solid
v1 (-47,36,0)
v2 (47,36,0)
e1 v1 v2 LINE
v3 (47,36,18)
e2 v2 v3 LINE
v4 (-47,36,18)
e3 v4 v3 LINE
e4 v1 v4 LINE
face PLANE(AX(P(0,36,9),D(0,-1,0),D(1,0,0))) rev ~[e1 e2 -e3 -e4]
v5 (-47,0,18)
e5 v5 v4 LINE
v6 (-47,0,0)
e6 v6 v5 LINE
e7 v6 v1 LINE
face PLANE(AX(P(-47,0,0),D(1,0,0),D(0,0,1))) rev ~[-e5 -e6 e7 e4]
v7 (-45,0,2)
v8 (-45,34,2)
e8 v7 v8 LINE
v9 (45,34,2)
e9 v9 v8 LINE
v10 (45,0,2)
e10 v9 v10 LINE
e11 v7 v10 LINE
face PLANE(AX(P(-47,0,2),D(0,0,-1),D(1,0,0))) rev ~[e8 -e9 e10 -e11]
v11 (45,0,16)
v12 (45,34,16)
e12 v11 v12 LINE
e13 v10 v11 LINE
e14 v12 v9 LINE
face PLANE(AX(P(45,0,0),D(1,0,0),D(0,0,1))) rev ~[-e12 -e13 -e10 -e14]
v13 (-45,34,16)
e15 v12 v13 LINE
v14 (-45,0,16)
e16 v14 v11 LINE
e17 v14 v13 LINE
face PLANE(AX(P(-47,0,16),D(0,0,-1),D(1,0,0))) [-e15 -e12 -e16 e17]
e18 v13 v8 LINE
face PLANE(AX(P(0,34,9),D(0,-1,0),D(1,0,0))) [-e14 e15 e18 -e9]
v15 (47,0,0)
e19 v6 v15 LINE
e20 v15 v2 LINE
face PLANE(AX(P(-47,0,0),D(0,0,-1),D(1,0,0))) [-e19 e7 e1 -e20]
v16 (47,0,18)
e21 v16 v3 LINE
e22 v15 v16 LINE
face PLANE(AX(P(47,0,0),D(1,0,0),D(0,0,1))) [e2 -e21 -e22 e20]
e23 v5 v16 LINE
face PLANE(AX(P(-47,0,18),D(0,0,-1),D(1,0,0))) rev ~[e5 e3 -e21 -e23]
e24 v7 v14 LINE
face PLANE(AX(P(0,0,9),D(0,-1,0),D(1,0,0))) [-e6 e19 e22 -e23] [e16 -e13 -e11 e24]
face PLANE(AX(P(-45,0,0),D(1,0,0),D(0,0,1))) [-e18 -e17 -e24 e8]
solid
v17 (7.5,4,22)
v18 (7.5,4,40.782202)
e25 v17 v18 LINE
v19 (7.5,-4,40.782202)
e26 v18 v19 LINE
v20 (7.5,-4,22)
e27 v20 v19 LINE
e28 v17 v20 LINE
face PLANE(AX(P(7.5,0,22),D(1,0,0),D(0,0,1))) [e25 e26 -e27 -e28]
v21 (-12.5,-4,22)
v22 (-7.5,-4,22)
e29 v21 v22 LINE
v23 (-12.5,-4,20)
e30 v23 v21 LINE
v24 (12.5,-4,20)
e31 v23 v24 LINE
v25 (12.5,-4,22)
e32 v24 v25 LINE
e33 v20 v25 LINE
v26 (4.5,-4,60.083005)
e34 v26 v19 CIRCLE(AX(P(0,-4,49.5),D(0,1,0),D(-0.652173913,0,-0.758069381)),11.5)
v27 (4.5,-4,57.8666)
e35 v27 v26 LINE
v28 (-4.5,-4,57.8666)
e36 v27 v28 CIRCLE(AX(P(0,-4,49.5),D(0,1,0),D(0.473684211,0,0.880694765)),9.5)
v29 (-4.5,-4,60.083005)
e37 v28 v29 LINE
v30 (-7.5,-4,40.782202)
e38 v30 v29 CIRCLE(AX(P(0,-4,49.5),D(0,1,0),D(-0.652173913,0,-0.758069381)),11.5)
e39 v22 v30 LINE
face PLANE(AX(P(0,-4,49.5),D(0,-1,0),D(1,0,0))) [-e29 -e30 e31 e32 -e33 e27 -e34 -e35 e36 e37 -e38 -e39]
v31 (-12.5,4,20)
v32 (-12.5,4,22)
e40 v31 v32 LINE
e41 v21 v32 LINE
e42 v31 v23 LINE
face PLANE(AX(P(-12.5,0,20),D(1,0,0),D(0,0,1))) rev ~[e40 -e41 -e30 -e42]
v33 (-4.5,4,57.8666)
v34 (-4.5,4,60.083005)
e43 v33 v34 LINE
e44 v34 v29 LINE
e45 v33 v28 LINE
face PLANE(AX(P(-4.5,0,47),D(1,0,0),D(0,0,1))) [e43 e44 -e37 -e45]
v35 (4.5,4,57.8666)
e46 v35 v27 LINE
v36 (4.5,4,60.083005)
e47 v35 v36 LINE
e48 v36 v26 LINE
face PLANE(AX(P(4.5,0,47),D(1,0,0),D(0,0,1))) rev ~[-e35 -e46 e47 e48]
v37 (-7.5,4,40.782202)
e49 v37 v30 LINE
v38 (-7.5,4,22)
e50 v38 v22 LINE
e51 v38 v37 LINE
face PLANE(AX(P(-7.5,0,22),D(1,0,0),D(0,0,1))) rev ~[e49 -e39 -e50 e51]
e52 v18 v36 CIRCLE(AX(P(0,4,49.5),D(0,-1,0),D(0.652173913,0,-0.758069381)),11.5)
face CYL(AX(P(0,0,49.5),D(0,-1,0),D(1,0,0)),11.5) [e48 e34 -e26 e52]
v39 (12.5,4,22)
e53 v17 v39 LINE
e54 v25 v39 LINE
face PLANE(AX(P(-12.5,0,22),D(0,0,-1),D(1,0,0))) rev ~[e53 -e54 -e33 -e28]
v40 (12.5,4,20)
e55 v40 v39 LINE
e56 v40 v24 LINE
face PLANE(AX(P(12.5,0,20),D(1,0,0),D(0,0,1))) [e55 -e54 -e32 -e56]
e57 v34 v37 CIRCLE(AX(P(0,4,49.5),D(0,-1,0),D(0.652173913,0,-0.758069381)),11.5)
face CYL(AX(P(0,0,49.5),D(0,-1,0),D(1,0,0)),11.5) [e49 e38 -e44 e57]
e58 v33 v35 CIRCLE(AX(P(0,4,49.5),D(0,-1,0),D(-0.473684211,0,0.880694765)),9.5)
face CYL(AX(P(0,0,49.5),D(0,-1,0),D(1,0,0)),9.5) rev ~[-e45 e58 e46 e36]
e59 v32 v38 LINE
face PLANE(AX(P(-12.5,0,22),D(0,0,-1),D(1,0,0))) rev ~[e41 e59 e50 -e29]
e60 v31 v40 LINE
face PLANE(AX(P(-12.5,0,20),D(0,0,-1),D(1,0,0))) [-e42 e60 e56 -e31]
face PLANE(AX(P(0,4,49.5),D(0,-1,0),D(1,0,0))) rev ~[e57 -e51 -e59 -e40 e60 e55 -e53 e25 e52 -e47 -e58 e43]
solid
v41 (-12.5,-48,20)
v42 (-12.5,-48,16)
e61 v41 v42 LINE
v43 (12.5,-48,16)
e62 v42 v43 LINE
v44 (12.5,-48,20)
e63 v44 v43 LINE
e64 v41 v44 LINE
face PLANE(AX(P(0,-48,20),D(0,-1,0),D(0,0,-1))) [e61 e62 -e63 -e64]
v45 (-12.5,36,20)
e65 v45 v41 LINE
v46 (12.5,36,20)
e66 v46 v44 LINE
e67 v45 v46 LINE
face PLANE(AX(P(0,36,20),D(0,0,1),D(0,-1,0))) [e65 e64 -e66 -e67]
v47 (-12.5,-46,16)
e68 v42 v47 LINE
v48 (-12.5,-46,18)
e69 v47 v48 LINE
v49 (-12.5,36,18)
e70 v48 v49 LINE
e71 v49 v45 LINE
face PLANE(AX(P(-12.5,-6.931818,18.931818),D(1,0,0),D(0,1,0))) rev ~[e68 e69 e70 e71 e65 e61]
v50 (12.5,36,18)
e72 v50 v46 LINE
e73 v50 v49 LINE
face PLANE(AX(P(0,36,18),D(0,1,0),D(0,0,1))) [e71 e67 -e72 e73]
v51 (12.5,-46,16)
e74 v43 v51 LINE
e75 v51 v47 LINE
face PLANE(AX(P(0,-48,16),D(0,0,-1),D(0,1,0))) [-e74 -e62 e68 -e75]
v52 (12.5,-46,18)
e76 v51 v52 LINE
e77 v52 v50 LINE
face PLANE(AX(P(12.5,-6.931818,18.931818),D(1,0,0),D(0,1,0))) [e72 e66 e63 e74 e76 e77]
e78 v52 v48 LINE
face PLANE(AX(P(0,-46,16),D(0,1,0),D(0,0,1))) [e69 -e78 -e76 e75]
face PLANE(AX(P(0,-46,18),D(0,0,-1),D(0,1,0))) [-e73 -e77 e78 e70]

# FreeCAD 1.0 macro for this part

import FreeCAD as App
import Part
import Sketcher

V = App.Vector


def faces_at(feature, points):
    """Names of the faces that lie closest to the given points."""
    faces = feature.Shape.Faces
    near = lambda p: min(range(len(faces)), key=lambda i: faces[i].distToShape(Part.Vertex(*p))[0])
    return sorted({f"Face{near(p) + 1}" for p in points})

doc = App.newDocument("Part")
body = doc.addObject("PartDesign::Body", "Body")

# Sketch on XZ plane
sketch1 = doc.addObject("Sketcher::SketchObject", "Sketch")
body.addObject(sketch1)
sketch1.AttachmentSupport = (doc.XZ_Plane, [""])
sketch1.MapMode = "FlatFace"
sketch1.addGeometry(Part.LineSegment(V(-47, 18, 0), V(-47, 0, 0)), False)
sketch1.addGeometry(Part.LineSegment(V(-47, 0, 0), V(47, 0, 0)), False)
sketch1.addGeometry(Part.LineSegment(V(47, 0, 0), V(47, 18, 0)), False)
sketch1.addGeometry(Part.LineSegment(V(47, 18, 0), V(-47, 18, 0)), False)
sketch1.addConstraint(Sketcher.Constraint("Coincident", 0, 2, 1, 1))
sketch1.addConstraint(Sketcher.Constraint("Coincident", 1, 2, 2, 1))
sketch1.addConstraint(Sketcher.Constraint("Coincident", 2, 2, 3, 1))
sketch1.addConstraint(Sketcher.Constraint("Coincident", 3, 2, 0, 1))
sketch1.addConstraint(Sketcher.Constraint("Vertical", 0))
sketch1.addConstraint(Sketcher.Constraint("Horizontal", 1))
sketch1.addConstraint(Sketcher.Constraint("Vertical", 2))
sketch1.addConstraint(Sketcher.Constraint("Horizontal", 3))
sketch1.addConstraint(Sketcher.Constraint("Symmetric", 0, 2, 1, 2, -1, 1))
sketch1.addConstraint(Sketcher.Constraint("DistanceX", 1, 1, 1, 2, 94.0))
sketch1.addConstraint(Sketcher.Constraint("DistanceY", 0, 2, 0, 1, 18.0))
pad1 = doc.addObject("PartDesign::Pad", "Pad")
body.addObject(pad1)
pad1.Profile = sketch1
pad1.Length = 36
pad1.Reversed = True
doc.recompute()

thickness = doc.addObject("PartDesign::Thickness", "Thickness")
body.addObject(thickness)
thickness.Base = (pad1, faces_at(pad1, [(0, 0, 9)]))
thickness.Value = 2
thickness.Reversed = True
thickness.Join = "Arc"
body2 = doc.addObject("PartDesign::Body", "Body001")

# Sketch on YZ plane
sketch2 = doc.addObject("Sketcher::SketchObject", "Sketch001")
body2.addObject(sketch2)
sketch2.AttachmentSupport = (doc.getObject("YZ_Plane001"), [""])
sketch2.MapMode = "FlatFace"
sketch2.addGeometry(Part.LineSegment(V(36, 18, 0), V(36, 20, 0)), False)
sketch2.addGeometry(Part.LineSegment(V(36, 20, 0), V(-48, 20, 0)), False)
sketch2.addGeometry(Part.LineSegment(V(-48, 20, 0), V(-48, 16, 0)), False)
sketch2.addGeometry(Part.LineSegment(V(-48, 16, 0), V(-46, 16, 0)), False)
sketch2.addGeometry(Part.LineSegment(V(-46, 16, 0), V(-46, 18, 0)), False)
sketch2.addGeometry(Part.LineSegment(V(-46, 18, 0), V(36, 18, 0)), False)
sketch2.addConstraint(Sketcher.Constraint("Coincident", 0, 2, 1, 1))
sketch2.addConstraint(Sketcher.Constraint("Coincident", 1, 2, 2, 1))
sketch2.addConstraint(Sketcher.Constraint("Coincident", 2, 2, 3, 1))
sketch2.addConstraint(Sketcher.Constraint("Coincident", 3, 2, 4, 1))
sketch2.addConstraint(Sketcher.Constraint("Coincident", 4, 2, 5, 1))
sketch2.addConstraint(Sketcher.Constraint("Coincident", 5, 2, 0, 1))
sketch2.addConstraint(Sketcher.Constraint("Vertical", 0))
sketch2.addConstraint(Sketcher.Constraint("Horizontal", 1))
sketch2.addConstraint(Sketcher.Constraint("Vertical", 2))
sketch2.addConstraint(Sketcher.Constraint("Horizontal", 3))
sketch2.addConstraint(Sketcher.Constraint("Vertical", 4))
sketch2.addConstraint(Sketcher.Constraint("Horizontal", 5))
sketch2.addConstraint(Sketcher.Constraint("Equal", 3, 0))
sketch2.addConstraint(Sketcher.Constraint("Equal", 0, 4))
sketch2.addConstraint(Sketcher.Constraint("DistanceX", 1, 2, 1, 1, 84.0))
sketch2.addConstraint(Sketcher.Constraint("DistanceX", 3, 1, 3, 2, 2.0))
sketch2.addConstraint(Sketcher.Constraint("DistanceX", -1, 1, 0, 2, 36.0))
sketch2.addConstraint(Sketcher.Constraint("DistanceY", -1, 1, 0, 2, 20.0))
pad2 = doc.addObject("PartDesign::Pad", "Pad001")
body2.addObject(pad2)
pad2.Profile = sketch2
pad2.Length = 25
pad2.Midplane = True
body3 = doc.addObject("PartDesign::Body", "Body002")

# Sketch on XZ plane
sketch3 = doc.addObject("Sketcher::SketchObject", "Sketch002")
body3.addObject(sketch3)
sketch3.AttachmentSupport = (doc.getObject("XZ_Plane002"), [""])
sketch3.MapMode = "FlatFace"
sketch3.addGeometry(Part.LineSegment(V(-12.5, 22, 0), V(-12.5, 20, 0)), False)
sketch3.addGeometry(Part.LineSegment(V(-12.5, 20, 0), V(12.5, 20, 0)), False)
sketch3.addGeometry(Part.LineSegment(V(12.5, 20, 0), V(12.5, 22, 0)), False)
sketch3.addGeometry(Part.LineSegment(V(12.5, 22, 0), V(-12.5, 22, 0)), False)
sketch3.addConstraint(Sketcher.Constraint("Coincident", 0, 2, 1, 1))
sketch3.addConstraint(Sketcher.Constraint("Coincident", 1, 2, 2, 1))
sketch3.addConstraint(Sketcher.Constraint("Coincident", 2, 2, 3, 1))
sketch3.addConstraint(Sketcher.Constraint("Coincident", 3, 2, 0, 1))
sketch3.addConstraint(Sketcher.Constraint("Vertical", 0))
sketch3.addConstraint(Sketcher.Constraint("Horizontal", 1))
sketch3.addConstraint(Sketcher.Constraint("Vertical", 2))
sketch3.addConstraint(Sketcher.Constraint("Horizontal", 3))
sketch3.addConstraint(Sketcher.Constraint("DistanceX", 1, 1, 1, 2, 25.0))
sketch3.addConstraint(Sketcher.Constraint("DistanceY", 0, 2, 0, 1, 2.0))
sketch3.addConstraint(Sketcher.Constraint("DistanceY", -1, 1, 0, 2, 20.0))
sketch3.addConstraint(Sketcher.Constraint("DistanceX", 0, 2, -1, 1, 12.5))
pad3 = doc.addObject("PartDesign::Pad", "Pad002")
body3.addObject(pad3)
pad3.Profile = sketch3
pad3.Length = 8
pad3.Midplane = True

# Sketch on XZ plane
sketch4 = doc.addObject("Sketcher::SketchObject", "Sketch003")
body3.addObject(sketch4)
sketch4.AttachmentSupport = (doc.getObject("XZ_Plane002"), [""])
sketch4.MapMode = "FlatFace"
sketch4.addGeometry(Part.LineSegment(V(-7.5, 47, 0), V(-7.5, 22, 0)), False)
sketch4.addGeometry(Part.LineSegment(V(-7.5, 22, 0), V(7.5, 22, 0)), False)
sketch4.addGeometry(Part.LineSegment(V(7.5, 22, 0), V(7.5, 47, 0)), False)
sketch4.addGeometry(Part.LineSegment(V(7.5, 47, 0), V(-7.5, 47, 0)), False)
sketch4.addConstraint(Sketcher.Constraint("Coincident", 0, 2, 1, 1))
sketch4.addConstraint(Sketcher.Constraint("Coincident", 1, 2, 2, 1))
sketch4.addConstraint(Sketcher.Constraint("Coincident", 2, 2, 3, 1))
sketch4.addConstraint(Sketcher.Constraint("Coincident", 3, 2, 0, 1))
sketch4.addConstraint(Sketcher.Constraint("Vertical", 0))
sketch4.addConstraint(Sketcher.Constraint("Horizontal", 1))
sketch4.addConstraint(Sketcher.Constraint("Vertical", 2))
sketch4.addConstraint(Sketcher.Constraint("Horizontal", 3))
sketch4.addConstraint(Sketcher.Constraint("DistanceX", 1, 1, 1, 2, 15.0))
sketch4.addConstraint(Sketcher.Constraint("DistanceY", 0, 2, 0, 1, 25.0))
sketch4.addConstraint(Sketcher.Constraint("DistanceY", -1, 1, 0, 2, 22.0))
sketch4.addConstraint(Sketcher.Constraint("DistanceX", 0, 2, -1, 1, 7.5))
pad4 = doc.addObject("PartDesign::Pad", "Pad003")
body3.addObject(pad4)
pad4.Profile = sketch4
pad4.Length = 8
pad4.Midplane = True

# Sketch on XZ plane
sketch5 = doc.addObject("Sketcher::SketchObject", "Sketch004")
body3.addObject(sketch5)
sketch5.AttachmentSupport = (doc.getObject("XZ_Plane002"), [""])
sketch5.MapMode = "FlatFace"
sketch5.addGeometry(Part.Circle(V(0, 49.5, 0), V(0, 0, 1), 11.5), False)
sketch5.addConstraint(Sketcher.Constraint("PointOnObject", 0, 3, -2))
sketch5.addConstraint(Sketcher.Constraint("Diameter", 0, 23.0))
sketch5.addConstraint(Sketcher.Constraint("DistanceY", -1, 1, 0, 3, 49.5))
pad5 = doc.addObject("PartDesign::Pad", "Pad004")
body3.addObject(pad5)
pad5.Profile = sketch5
pad5.Length = 8
pad5.Midplane = True

# Sketch on XZ plane
sketch6 = doc.addObject("Sketcher::SketchObject", "Sketch005")
body3.addObject(sketch6)
sketch6.AttachmentSupport = (doc.getObject("XZ_Plane002"), [""])
sketch6.MapMode = "FlatFace"
sketch6.addGeometry(Part.Circle(V(0, 49.5, 0), V(0, 0, 1), 9.5), False)
sketch6.addConstraint(Sketcher.Constraint("PointOnObject", 0, 3, -2))
sketch6.addConstraint(Sketcher.Constraint("Diameter", 0, 19.0))
sketch6.addConstraint(Sketcher.Constraint("DistanceY", -1, 1, 0, 3, 49.5))
pocket1 = doc.addObject("PartDesign::Pocket", "Pocket")
body3.addObject(pocket1)
pocket1.Profile = sketch6
pocket1.Length = 35.4
pocket1.Midplane = True

# Sketch on XZ plane
sketch7 = doc.addObject("Sketcher::SketchObject", "Sketch006")
body3.addObject(sketch7)
sketch7.AttachmentSupport = (doc.getObject("XZ_Plane002"), [""])
sketch7.MapMode = "FlatFace"
sketch7.addGeometry(Part.LineSegment(V(-4.5, 72, 0), V(-4.5, 47, 0)), False)
sketch7.addGeometry(Part.LineSegment(V(-4.5, 47, 0), V(4.5, 47, 0)), False)
sketch7.addGeometry(Part.LineSegment(V(4.5, 47, 0), V(4.5, 72, 0)), False)
sketch7.addGeometry(Part.LineSegment(V(4.5, 72, 0), V(-4.5, 72, 0)), False)
sketch7.addConstraint(Sketcher.Constraint("Coincident", 0, 2, 1, 1))
sketch7.addConstraint(Sketcher.Constraint("Coincident", 1, 2, 2, 1))
sketch7.addConstraint(Sketcher.Constraint("Coincident", 2, 2, 3, 1))
sketch7.addConstraint(Sketcher.Constraint("Coincident", 3, 2, 0, 1))
sketch7.addConstraint(Sketcher.Constraint("Vertical", 0))
sketch7.addConstraint(Sketcher.Constraint("Horizontal", 1))
sketch7.addConstraint(Sketcher.Constraint("Vertical", 2))
sketch7.addConstraint(Sketcher.Constraint("Horizontal", 3))
sketch7.addConstraint(Sketcher.Constraint("DistanceX", 1, 1, 1, 2, 9.0))
sketch7.addConstraint(Sketcher.Constraint("DistanceY", 0, 2, 0, 1, 25.0))
sketch7.addConstraint(Sketcher.Constraint("DistanceY", -1, 1, 0, 2, 47.0))
sketch7.addConstraint(Sketcher.Constraint("DistanceX", 0, 2, -1, 1, 4.5))
pocket2 = doc.addObject("PartDesign::Pocket", "Pocket001")
body3.addObject(pocket2)
pocket2.Profile = sketch7
pocket2.Length = 25
pocket2.Midplane = True

doc.recompute()
